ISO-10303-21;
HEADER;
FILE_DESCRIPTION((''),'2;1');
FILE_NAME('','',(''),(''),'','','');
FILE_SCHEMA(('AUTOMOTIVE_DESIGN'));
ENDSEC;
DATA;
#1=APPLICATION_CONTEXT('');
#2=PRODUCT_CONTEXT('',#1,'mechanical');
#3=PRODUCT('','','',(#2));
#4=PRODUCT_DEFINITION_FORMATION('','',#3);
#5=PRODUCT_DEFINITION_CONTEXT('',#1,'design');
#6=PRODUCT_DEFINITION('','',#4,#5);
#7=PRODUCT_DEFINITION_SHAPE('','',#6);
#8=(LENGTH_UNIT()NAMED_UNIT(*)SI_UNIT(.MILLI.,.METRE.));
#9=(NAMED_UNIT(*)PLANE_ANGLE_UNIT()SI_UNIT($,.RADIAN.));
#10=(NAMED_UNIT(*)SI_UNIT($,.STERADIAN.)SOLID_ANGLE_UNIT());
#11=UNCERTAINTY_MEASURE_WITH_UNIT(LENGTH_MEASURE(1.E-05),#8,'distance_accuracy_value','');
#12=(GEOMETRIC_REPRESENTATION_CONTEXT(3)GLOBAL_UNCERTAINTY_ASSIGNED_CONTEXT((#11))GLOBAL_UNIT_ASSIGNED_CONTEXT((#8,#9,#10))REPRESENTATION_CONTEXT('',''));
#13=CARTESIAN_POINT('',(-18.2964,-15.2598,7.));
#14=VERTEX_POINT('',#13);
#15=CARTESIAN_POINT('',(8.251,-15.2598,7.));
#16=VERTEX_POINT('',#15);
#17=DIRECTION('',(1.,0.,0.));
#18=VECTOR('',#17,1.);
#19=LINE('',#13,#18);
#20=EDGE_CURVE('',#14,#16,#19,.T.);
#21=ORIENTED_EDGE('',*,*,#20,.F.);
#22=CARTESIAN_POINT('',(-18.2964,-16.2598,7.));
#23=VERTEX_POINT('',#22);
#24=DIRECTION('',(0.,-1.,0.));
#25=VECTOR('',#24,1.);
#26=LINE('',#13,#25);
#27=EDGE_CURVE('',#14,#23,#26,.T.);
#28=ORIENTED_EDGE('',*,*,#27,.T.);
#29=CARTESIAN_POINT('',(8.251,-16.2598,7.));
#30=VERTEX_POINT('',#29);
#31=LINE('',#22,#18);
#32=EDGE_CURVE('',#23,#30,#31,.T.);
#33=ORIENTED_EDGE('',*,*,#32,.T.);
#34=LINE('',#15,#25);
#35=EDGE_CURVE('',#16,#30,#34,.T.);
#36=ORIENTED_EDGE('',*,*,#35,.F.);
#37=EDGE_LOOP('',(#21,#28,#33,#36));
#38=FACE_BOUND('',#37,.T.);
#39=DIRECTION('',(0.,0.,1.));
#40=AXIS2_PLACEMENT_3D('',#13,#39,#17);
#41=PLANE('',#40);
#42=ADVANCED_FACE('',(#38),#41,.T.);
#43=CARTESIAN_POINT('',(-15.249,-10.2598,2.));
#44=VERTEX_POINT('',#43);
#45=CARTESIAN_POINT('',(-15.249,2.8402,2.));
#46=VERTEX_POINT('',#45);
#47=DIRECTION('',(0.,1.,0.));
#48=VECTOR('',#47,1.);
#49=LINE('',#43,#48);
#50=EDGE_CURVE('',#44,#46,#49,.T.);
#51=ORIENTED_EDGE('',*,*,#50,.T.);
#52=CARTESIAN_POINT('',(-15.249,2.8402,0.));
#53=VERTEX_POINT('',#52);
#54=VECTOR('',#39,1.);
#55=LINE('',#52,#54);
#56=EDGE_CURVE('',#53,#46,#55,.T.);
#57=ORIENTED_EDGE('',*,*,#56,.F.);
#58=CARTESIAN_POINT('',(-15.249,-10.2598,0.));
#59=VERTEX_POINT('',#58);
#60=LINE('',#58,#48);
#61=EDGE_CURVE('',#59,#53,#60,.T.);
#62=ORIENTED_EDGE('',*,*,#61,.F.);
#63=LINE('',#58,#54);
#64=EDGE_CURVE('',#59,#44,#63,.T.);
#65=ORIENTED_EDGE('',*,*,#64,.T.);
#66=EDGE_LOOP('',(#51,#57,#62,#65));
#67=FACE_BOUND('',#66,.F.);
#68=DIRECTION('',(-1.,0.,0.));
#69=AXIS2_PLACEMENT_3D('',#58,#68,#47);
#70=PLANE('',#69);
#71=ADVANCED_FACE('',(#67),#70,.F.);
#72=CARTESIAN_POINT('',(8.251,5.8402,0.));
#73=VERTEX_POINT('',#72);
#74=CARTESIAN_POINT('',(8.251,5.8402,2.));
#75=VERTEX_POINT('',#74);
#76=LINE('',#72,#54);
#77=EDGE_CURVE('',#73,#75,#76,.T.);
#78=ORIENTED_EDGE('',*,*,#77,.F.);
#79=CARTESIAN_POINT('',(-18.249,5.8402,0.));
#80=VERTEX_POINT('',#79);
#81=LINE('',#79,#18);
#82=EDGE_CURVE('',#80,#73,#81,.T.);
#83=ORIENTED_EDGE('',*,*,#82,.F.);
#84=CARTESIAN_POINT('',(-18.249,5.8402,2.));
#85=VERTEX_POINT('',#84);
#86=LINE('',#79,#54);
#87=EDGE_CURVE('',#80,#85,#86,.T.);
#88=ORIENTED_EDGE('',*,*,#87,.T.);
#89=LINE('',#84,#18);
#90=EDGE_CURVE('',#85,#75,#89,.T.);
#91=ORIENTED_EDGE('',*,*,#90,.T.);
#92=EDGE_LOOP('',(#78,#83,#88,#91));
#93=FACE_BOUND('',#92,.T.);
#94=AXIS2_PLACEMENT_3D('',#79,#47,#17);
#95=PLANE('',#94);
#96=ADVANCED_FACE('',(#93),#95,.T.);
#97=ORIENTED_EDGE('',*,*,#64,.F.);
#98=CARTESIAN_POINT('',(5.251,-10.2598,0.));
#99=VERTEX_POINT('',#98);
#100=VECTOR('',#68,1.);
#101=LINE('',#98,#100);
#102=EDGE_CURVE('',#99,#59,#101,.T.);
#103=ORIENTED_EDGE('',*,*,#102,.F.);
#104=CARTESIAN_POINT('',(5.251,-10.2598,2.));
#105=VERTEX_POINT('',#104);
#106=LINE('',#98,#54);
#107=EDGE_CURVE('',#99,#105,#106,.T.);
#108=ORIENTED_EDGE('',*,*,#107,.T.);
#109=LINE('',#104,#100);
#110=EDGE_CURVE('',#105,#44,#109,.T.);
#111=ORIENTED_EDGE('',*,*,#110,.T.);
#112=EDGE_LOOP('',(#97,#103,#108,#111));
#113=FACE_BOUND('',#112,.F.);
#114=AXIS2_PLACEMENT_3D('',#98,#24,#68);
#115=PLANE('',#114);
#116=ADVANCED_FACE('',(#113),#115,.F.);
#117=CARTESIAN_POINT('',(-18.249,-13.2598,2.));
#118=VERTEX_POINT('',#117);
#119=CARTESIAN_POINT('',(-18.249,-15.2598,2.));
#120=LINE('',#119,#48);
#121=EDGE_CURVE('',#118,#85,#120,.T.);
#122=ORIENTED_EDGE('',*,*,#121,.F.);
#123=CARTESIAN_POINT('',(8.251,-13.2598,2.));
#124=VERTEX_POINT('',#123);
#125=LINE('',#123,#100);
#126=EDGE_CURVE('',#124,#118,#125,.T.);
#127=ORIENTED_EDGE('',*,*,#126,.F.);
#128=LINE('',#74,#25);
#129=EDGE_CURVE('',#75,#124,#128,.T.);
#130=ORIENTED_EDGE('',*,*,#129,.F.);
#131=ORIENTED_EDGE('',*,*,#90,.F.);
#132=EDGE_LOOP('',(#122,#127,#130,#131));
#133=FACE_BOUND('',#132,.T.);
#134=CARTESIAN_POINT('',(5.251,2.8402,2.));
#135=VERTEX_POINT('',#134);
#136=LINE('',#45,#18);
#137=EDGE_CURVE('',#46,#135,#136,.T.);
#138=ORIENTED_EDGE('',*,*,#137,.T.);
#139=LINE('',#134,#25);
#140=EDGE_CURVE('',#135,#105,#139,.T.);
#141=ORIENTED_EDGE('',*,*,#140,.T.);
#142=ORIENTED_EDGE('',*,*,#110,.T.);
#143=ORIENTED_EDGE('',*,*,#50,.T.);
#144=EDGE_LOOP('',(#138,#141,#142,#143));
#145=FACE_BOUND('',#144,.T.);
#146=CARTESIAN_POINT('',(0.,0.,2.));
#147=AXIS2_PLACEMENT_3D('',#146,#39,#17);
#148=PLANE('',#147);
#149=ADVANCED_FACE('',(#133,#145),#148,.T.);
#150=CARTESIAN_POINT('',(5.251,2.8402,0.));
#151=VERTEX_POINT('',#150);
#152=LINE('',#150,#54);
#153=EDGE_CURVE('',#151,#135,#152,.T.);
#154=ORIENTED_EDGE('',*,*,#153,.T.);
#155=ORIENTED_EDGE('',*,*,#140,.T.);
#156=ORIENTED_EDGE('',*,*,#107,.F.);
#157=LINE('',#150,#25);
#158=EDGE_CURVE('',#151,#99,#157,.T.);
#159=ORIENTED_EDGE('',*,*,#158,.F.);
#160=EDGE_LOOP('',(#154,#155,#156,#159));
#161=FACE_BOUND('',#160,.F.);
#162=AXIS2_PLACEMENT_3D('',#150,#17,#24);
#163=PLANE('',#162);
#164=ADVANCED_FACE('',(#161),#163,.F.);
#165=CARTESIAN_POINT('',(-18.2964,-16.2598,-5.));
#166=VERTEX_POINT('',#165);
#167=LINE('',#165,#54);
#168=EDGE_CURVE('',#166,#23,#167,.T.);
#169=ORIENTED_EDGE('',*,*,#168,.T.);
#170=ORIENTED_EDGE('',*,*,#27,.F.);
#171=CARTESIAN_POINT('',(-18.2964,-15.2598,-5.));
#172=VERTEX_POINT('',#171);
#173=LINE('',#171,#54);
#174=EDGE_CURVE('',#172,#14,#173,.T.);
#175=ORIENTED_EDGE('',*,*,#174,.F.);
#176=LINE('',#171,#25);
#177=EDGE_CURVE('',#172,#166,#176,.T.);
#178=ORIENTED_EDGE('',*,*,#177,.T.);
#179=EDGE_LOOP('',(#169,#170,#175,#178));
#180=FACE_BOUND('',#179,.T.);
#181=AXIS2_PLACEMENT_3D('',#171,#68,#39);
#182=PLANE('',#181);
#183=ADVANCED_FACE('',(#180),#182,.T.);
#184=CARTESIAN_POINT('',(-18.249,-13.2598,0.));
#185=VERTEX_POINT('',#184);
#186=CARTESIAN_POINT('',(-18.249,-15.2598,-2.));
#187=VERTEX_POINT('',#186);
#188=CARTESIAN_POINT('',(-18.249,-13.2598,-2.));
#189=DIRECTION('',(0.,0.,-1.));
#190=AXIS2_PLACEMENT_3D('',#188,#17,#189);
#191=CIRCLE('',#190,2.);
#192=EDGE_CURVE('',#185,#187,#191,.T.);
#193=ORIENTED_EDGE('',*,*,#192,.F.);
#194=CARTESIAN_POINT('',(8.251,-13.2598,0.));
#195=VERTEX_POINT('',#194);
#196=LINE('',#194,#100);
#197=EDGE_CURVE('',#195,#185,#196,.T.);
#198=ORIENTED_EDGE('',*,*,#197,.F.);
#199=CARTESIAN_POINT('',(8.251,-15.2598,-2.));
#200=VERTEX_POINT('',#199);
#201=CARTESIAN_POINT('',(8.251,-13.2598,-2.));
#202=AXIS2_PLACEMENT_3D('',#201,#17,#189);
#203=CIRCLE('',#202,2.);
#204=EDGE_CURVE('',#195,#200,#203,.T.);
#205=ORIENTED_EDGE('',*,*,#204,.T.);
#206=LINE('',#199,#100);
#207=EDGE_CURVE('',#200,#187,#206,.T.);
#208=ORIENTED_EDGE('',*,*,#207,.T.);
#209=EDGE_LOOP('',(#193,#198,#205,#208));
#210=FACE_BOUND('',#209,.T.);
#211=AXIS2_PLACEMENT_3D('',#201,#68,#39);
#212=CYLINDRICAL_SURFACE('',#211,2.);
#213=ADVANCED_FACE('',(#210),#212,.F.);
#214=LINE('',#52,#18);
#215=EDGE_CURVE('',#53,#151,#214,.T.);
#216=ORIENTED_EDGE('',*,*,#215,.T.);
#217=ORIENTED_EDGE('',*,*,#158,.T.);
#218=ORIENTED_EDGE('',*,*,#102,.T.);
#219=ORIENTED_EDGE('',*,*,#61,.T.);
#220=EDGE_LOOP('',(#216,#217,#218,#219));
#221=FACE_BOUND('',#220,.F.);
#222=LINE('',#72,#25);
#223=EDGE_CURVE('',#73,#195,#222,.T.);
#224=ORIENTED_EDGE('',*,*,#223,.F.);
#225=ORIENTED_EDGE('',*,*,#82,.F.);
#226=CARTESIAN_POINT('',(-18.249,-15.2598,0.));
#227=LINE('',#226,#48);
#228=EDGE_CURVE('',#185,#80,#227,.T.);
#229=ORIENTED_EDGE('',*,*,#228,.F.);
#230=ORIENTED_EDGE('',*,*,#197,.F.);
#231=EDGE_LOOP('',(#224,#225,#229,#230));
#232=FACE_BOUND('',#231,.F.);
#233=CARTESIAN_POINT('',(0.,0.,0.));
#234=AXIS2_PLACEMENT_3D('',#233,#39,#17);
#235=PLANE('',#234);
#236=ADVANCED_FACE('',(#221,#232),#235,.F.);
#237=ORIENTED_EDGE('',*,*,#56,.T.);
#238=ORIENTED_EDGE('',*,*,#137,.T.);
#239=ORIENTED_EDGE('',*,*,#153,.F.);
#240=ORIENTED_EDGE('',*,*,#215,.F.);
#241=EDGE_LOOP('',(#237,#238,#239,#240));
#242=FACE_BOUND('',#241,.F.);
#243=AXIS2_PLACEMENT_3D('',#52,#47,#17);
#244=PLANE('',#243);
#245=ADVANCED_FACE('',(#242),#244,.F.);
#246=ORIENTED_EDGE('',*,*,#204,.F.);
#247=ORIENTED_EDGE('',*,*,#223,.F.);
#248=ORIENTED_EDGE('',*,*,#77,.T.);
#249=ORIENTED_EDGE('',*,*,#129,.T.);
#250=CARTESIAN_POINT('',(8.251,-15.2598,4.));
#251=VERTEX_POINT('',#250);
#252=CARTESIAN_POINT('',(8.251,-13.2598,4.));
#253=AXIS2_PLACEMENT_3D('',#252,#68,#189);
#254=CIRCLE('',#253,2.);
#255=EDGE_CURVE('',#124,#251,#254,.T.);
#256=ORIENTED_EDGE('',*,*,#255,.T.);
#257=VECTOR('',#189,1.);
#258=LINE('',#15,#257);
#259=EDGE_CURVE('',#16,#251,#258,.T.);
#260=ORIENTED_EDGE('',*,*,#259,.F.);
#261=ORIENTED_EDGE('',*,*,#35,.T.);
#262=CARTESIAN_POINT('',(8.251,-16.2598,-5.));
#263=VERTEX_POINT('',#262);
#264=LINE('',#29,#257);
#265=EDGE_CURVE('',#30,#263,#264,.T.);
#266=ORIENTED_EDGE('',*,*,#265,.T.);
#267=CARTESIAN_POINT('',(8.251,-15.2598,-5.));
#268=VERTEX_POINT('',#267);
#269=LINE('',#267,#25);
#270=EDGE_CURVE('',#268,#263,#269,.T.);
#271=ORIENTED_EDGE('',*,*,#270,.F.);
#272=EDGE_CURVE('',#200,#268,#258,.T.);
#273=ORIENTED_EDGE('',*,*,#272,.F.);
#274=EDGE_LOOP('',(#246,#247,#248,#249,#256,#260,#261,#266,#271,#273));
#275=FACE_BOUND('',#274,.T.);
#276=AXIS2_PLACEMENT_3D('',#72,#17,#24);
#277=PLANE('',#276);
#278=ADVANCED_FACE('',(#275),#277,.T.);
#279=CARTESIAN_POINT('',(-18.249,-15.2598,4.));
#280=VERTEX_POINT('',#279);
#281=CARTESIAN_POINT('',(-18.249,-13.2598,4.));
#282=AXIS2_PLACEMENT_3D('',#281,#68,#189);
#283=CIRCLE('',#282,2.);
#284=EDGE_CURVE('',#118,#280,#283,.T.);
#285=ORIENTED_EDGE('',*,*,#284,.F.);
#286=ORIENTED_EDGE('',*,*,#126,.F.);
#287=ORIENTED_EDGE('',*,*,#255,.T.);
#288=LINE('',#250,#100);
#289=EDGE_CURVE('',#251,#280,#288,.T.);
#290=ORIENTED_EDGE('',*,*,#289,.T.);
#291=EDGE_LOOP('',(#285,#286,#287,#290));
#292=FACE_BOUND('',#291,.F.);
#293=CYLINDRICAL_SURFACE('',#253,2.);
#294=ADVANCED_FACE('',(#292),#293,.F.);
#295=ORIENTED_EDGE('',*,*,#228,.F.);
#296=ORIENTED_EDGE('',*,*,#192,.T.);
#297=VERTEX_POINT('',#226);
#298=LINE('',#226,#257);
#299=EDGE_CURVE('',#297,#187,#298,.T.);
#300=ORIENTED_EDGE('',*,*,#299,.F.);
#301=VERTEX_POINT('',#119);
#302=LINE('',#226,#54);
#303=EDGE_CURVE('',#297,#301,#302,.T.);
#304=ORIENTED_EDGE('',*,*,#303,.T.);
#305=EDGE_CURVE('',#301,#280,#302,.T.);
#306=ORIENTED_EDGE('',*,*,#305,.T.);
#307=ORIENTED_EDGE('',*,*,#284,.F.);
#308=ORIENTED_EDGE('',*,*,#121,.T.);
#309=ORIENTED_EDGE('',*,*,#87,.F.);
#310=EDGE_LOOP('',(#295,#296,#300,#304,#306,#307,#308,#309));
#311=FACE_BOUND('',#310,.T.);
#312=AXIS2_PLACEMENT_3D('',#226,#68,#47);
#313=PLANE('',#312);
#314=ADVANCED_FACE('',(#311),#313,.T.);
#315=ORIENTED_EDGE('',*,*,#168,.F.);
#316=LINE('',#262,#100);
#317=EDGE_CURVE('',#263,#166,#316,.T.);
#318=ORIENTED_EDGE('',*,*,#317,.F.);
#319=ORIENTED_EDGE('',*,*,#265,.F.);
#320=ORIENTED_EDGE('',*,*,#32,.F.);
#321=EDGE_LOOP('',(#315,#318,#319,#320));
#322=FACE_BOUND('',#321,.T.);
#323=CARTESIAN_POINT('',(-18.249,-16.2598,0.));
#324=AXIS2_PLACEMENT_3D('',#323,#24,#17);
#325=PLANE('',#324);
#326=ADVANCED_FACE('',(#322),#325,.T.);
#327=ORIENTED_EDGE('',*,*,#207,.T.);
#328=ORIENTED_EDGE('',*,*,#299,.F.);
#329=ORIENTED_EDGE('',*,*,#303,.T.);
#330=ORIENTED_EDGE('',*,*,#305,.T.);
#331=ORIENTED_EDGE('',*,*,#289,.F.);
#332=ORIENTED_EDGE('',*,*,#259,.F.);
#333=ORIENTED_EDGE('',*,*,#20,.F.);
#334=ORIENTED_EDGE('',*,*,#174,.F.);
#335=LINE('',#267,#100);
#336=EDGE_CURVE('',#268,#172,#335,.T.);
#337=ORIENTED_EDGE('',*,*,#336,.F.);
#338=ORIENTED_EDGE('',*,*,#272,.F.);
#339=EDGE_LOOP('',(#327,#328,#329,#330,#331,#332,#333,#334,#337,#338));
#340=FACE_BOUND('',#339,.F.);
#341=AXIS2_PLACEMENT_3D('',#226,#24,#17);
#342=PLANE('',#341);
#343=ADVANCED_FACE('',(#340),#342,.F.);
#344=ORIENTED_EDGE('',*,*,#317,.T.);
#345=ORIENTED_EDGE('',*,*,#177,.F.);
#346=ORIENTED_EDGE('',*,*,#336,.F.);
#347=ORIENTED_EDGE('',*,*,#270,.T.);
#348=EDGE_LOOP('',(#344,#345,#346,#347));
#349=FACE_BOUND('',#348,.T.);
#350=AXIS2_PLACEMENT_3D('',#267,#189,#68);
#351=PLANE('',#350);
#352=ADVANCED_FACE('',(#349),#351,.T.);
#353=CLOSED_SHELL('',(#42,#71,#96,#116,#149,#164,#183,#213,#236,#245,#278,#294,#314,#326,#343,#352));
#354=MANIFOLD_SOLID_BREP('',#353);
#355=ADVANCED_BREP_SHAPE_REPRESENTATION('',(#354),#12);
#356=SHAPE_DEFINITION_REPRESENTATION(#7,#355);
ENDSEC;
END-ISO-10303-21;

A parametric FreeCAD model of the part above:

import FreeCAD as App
import Part
import Sketcher
from FreeCAD import Vector


def edges_at(feature, points):
    """Names of the edges that pass closest to the given points."""
    edges = feature.Shape.Edges
    near = lambda p: min(range(len(edges)), key=lambda i: edges[i].distToShape(Part.Vertex(*p))[0])
    return sorted({f"Edge{near(p) + 1}" for p in points})

doc = App.newDocument("Part")
body = doc.addObject("PartDesign::Body", "Body")

# Sketch on XY plane
sketch1 = doc.addObject("Sketcher::SketchObject", "Sketch")
body.addObject(sketch1)
sketch1.AttachmentSupport = (doc.XY_Plane, [""])
sketch1.MapMode = "FlatFace"
sketch1.addGeometry(Part.LineSegment(Vector(8, 6, 0), Vector(-18, 6, 0)), False)
sketch1.addGeometry(Part.LineSegment(Vector(-18, 6, 0), Vector(-18, -15, 0)), False)
sketch1.addGeometry(Part.LineSegment(Vector(-18, -15, 0), Vector(8, -15, 0)), False)
sketch1.addGeometry(Part.LineSegment(Vector(8, -15, 0), Vector(8, 6, 0)), False)
sketch1.addGeometry(Part.LineSegment(Vector(-15, -10, 0), Vector(-15, 3, 0)), False)
sketch1.addGeometry(Part.LineSegment(Vector(-15, 3, 0), Vector(5, 3, 0)), False)
sketch1.addGeometry(Part.LineSegment(Vector(5, 3, 0), Vector(5, -10, 0)), False)
sketch1.addGeometry(Part.LineSegment(Vector(5, -10, 0), Vector(-15, -10, 0)), False)
sketch1.addConstraint(Sketcher.Constraint("Coincident", 0, 2, 1, 1))
sketch1.addConstraint(Sketcher.Constraint("Coincident", 1, 2, 2, 1))
sketch1.addConstraint(Sketcher.Constraint("Coincident", 2, 2, 3, 1))
sketch1.addConstraint(Sketcher.Constraint("Coincident", 3, 2, 0, 1))
sketch1.addConstraint(Sketcher.Constraint("Coincident", 4, 2, 5, 1))
sketch1.addConstraint(Sketcher.Constraint("Coincident", 5, 2, 6, 1))
sketch1.addConstraint(Sketcher.Constraint("Coincident", 6, 2, 7, 1))
sketch1.addConstraint(Sketcher.Constraint("Coincident", 7, 2, 4, 1))
sketch1.addConstraint(Sketcher.Constraint("Horizontal", 0))
sketch1.addConstraint(Sketcher.Constraint("Vertical", 1))
sketch1.addConstraint(Sketcher.Constraint("Horizontal", 2))
sketch1.addConstraint(Sketcher.Constraint("Vertical", 3))
sketch1.addConstraint(Sketcher.Constraint("Vertical", 4))
sketch1.addConstraint(Sketcher.Constraint("Horizontal", 5))
sketch1.addConstraint(Sketcher.Constraint("Vertical", 6))
sketch1.addConstraint(Sketcher.Constraint("Horizontal", 7))
sketch1.addConstraint(Sketcher.Constraint("DistanceX", 5, 1, 5, 2, 20.5))
sketch1.addConstraint(Sketcher.Constraint("DistanceY", 4, 1, 4, 2, 13.1))
sketch1.addConstraint(Sketcher.Constraint("DistanceX", 0, 2, 4, 2, 3.0))
sketch1.addConstraint(Sketcher.Constraint("DistanceY", 4, 2, 0, 2, 3.0))
sketch1.addConstraint(Sketcher.Constraint("DistanceX", 5, 2, 3, 2, 3.0))
sketch1.addConstraint(Sketcher.Constraint("DistanceY", 2, 2, 6, 2, 5.0))
sketch1.addConstraint(Sketcher.Constraint("DistanceX", 0, 2, -1, 1, 18.249))
sketch1.addConstraint(Sketcher.Constraint("DistanceY", -1, 1, 0, 2, 5.8402))
pad1 = doc.addObject("PartDesign::Pad", "Pad")
body.addObject(pad1)
pad1.Profile = sketch1
pad1.Length = 2

# Sketch on XZ plane
sketch2 = doc.addObject("Sketcher::SketchObject", "Sketch001")
body.addObject(sketch2)
sketch2.AttachmentSupport = (doc.XZ_Plane, [""])
sketch2.MapMode = "FlatFace"
sketch2.AttachmentOffset = App.Placement(Vector(0, 0, 15.2598), App.Rotation())
sketch2.addGeometry(Part.LineSegment(Vector(8, 7, 0), Vector(-18, 7, 0)), False)
sketch2.addGeometry(Part.LineSegment(Vector(-18, 7, 0), Vector(-18, -5, 0)), False)
sketch2.addGeometry(Part.LineSegment(Vector(-18, -5, 0), Vector(8, -5, 0)), False)
sketch2.addGeometry(Part.LineSegment(Vector(8, -5, 0), Vector(8, 7, 0)), False)
sketch2.addConstraint(Sketcher.Constraint("Coincident", 0, 2, 1, 1))
sketch2.addConstraint(Sketcher.Constraint("Coincident", 1, 2, 2, 1))
sketch2.addConstraint(Sketcher.Constraint("Coincident", 2, 2, 3, 1))
sketch2.addConstraint(Sketcher.Constraint("Coincident", 3, 2, 0, 1))
sketch2.addConstraint(Sketcher.Constraint("Horizontal", 0))
sketch2.addConstraint(Sketcher.Constraint("Vertical", 1))
sketch2.addConstraint(Sketcher.Constraint("Horizontal", 2))
sketch2.addConstraint(Sketcher.Constraint("Vertical", 3))
sketch2.addConstraint(Sketcher.Constraint("DistanceY", 1, 2, -1, 1, 5.0))
sketch2.addConstraint(Sketcher.Constraint("DistanceY", 1, 2, 1, 1, 12.0))
sketch2.addConstraint(Sketcher.Constraint("DistanceX", 0, 2, 0, 1, 26.5474))
sketch2.addConstraint(Sketcher.Constraint("DistanceX", -1, 1, 2, 2, 8.251))
pad2 = doc.addObject("PartDesign::Pad", "Pad001")
body.addObject(pad2)
pad2.Profile = sketch2
pad2.Length = 1
doc.recompute()

fillet = doc.addObject("PartDesign::Fillet", "Fillet")
body.addObject(fillet)
fillet.Base = (pad2, edges_at(pad2, [(-4.999, -15.26, 2), (-4.999, -15.26, 0)]))
fillet.Radius = 2

doc.recompute()
